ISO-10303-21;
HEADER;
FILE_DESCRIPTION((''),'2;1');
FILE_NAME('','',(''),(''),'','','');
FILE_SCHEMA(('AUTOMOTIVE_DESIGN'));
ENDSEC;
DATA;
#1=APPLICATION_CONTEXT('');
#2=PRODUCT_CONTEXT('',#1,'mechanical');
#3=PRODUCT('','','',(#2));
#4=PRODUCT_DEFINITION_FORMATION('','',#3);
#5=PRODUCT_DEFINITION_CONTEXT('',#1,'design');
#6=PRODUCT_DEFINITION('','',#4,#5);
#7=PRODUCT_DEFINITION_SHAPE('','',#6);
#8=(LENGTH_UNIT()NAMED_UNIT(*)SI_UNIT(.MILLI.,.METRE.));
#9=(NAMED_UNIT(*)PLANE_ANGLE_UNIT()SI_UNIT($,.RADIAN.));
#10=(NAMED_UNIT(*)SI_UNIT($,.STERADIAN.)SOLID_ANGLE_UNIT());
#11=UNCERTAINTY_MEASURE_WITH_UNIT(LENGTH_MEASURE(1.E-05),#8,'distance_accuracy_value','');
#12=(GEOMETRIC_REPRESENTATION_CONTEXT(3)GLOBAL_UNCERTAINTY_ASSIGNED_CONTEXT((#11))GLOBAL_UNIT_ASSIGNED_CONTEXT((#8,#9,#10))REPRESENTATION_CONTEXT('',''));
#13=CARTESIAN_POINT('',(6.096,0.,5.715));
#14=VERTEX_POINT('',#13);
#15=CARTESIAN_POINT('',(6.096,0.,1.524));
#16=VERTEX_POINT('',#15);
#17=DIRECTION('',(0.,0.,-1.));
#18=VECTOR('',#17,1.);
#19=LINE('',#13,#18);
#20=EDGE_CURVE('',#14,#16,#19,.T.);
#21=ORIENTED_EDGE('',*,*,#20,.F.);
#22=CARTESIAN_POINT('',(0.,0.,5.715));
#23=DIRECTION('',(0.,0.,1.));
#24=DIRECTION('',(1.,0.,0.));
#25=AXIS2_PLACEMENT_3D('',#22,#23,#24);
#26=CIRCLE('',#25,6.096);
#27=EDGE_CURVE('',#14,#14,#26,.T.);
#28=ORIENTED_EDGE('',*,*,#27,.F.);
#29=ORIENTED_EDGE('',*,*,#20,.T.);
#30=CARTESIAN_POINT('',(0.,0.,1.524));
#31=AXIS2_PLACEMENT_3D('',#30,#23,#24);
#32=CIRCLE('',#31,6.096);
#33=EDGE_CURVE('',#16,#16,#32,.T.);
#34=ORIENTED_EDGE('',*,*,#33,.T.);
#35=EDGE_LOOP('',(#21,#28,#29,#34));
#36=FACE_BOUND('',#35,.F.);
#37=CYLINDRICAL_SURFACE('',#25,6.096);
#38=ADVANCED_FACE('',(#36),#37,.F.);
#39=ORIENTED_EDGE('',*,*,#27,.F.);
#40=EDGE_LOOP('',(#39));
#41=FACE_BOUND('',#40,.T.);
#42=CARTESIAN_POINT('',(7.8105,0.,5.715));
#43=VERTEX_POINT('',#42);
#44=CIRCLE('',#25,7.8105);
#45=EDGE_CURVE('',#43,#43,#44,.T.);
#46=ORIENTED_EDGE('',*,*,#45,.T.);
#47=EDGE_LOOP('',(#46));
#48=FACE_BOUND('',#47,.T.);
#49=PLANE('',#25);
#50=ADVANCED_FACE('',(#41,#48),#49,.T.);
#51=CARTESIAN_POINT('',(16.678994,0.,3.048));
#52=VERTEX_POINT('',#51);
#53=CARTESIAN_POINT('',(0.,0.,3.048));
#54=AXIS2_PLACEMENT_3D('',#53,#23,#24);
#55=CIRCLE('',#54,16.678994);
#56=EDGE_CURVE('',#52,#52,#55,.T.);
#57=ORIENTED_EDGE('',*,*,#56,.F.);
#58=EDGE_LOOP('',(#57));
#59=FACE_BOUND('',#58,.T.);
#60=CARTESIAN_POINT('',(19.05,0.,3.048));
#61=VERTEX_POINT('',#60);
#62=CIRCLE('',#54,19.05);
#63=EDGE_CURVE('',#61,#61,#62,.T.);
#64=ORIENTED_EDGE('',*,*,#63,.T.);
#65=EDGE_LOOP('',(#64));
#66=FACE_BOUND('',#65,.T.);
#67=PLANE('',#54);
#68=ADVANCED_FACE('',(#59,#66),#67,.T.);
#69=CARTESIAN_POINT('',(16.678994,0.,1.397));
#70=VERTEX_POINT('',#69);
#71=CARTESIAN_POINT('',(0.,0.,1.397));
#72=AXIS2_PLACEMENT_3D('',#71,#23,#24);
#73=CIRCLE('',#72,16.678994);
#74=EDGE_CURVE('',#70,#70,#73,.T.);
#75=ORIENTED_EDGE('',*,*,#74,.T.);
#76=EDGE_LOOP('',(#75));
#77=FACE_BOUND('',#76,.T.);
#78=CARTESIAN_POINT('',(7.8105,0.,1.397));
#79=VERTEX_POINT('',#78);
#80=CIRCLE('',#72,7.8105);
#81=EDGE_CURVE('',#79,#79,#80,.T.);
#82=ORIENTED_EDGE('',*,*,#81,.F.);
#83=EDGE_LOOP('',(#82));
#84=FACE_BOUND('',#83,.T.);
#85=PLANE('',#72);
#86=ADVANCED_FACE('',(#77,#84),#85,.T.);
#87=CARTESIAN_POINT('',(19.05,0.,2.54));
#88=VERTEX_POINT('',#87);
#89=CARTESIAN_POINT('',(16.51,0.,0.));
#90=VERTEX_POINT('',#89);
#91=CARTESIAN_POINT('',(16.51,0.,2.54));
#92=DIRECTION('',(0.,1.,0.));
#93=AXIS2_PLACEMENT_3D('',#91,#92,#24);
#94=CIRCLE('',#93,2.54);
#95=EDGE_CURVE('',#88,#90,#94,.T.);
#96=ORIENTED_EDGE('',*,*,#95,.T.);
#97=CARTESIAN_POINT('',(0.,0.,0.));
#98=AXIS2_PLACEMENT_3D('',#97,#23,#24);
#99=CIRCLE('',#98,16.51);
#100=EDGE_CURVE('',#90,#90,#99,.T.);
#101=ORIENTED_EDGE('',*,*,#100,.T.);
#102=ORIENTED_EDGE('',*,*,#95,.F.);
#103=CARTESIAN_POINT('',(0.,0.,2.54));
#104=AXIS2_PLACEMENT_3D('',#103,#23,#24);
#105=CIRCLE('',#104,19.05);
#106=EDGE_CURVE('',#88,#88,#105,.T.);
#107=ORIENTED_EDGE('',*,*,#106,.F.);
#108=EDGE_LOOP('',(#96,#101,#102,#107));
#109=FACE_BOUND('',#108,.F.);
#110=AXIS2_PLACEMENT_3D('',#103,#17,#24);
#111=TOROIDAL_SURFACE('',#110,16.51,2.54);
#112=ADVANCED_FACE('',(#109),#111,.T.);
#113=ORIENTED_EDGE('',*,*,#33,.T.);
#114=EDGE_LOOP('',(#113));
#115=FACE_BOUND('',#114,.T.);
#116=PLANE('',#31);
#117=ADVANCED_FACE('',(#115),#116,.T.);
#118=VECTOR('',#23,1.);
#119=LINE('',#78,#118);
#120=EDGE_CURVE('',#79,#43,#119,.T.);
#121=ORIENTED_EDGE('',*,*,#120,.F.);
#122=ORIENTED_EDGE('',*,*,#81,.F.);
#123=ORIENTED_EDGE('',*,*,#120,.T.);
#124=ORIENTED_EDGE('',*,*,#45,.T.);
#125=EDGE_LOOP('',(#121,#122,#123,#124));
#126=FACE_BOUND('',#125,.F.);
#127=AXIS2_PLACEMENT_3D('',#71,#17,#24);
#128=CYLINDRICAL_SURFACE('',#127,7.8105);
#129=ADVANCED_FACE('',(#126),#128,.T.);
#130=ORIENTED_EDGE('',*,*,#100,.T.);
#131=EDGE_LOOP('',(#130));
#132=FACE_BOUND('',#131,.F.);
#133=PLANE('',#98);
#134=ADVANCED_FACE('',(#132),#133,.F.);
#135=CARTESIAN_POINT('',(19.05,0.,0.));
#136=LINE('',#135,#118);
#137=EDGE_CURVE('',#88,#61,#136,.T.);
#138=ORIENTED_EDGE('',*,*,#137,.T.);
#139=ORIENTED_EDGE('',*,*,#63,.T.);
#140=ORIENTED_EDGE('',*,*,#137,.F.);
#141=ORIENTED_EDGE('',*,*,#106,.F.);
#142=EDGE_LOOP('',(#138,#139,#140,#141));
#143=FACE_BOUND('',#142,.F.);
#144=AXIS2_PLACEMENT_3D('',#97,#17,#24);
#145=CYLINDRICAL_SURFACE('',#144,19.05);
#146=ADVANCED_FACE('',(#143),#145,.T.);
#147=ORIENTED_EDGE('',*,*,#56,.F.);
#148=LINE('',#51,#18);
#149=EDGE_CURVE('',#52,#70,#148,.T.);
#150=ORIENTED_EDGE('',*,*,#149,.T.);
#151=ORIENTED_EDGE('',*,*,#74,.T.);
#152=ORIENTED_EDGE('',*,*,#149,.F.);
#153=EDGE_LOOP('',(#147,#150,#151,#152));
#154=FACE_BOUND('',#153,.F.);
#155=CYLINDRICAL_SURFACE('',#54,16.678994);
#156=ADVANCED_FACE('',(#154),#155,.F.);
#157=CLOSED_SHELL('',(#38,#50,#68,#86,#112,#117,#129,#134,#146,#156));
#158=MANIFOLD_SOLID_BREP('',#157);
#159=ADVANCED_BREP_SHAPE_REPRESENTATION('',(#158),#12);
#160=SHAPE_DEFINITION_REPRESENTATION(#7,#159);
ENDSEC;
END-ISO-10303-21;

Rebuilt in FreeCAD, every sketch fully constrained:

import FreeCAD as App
import Part
import Sketcher
Q = App.Units.Quantity


def edges_at(feature, points):
    """Names of the edges that pass closest to the given points."""
    edges = feature.Shape.Edges
    near = lambda p: min(range(len(edges)), key=lambda i: edges[i].distToShape(Part.Vertex(*p))[0])
    return sorted({f"Edge{near(p) + 1}" for p in points})

doc = App.newDocument("Part")
body = doc.addObject("PartDesign::Body", "Body")

sketch1 = body.newObject("Sketcher::SketchObject", "Sketch")
sketch1.AttachmentSupport = (doc.getObject("XY_Plane"), [""])
sketch1.MapMode = "FlatFace"
sketch1.addGeometry(Part.Circle(App.Vector(0, 0, 0), App.Vector(0, 0, 1), 19), False)
sketch1.addConstraint(Sketcher.Constraint("Coincident", 0, 3, -1, 1))
sketch1.addConstraint(Sketcher.Constraint("Diameter", 0, Q("1.5 in")))
pad1 = body.newObject("PartDesign::Pad", "Pad")
pad1.Profile = sketch1
pad1.Length = Q("0.12 in")
doc.recompute()

fillet = body.newObject("PartDesign::Fillet", "Fillet")
fillet.Base = (pad1, edges_at(pad1, [(-19.05, 0, 0)]))
fillet.Radius = Q("0.1 in")

sketch2 = body.newObject("Sketcher::SketchObject", "Sketch001")
sketch2.AttachmentSupport = (doc.getObject("XY_Plane"), [""])
sketch2.MapMode = "FlatFace"
sketch2.AttachmentOffset = App.Placement(App.Vector(0, 0, 0.12 * 25.4), App.Rotation())
sketch2.addGeometry(Part.Circle(App.Vector(0, 0, 0), App.Vector(0, 0, 1), 17), False)
sketch2.addConstraint(Sketcher.Constraint("Coincident", 0, 3, -1, 1))
sketch2.addConstraint(Sketcher.Constraint("Diameter", 0, Q("33.357988 mm")))
pocket1 = body.newObject("PartDesign::Pocket", "Pocket")
pocket1.Profile = sketch2
pocket1.Length = Q("0.065 in")

sketch3 = body.newObject("Sketcher::SketchObject", "Sketch002")
sketch3.AttachmentSupport = (doc.getObject("XY_Plane"), [""])
sketch3.MapMode = "FlatFace"
sketch3.AttachmentOffset = App.Placement(App.Vector(0, 0, 0.055 * 25.4), App.Rotation())
sketch3.addGeometry(Part.Circle(App.Vector(0, 0, 0), App.Vector(0, 0, 1), 8), False)
sketch3.addConstraint(Sketcher.Constraint("Coincident", 0, 3, -1, 1))
sketch3.addConstraint(Sketcher.Constraint("Diameter", 0, Q("0.615 in")))
pad2 = body.newObject("PartDesign::Pad", "Pad001")
pad2.Profile = sketch3
pad2.Length = Q("0.17 in")

sketch4 = body.newObject("Sketcher::SketchObject", "Sketch003")
sketch4.AttachmentSupport = (doc.getObject("XY_Plane"), [""])
sketch4.MapMode = "FlatFace"
sketch4.AttachmentOffset = App.Placement(App.Vector(0, 0, 0.225 * 25.4), App.Rotation())
sketch4.addGeometry(Part.Circle(App.Vector(0, 0, 0), App.Vector(0, 0, 1), 6), False)
sketch4.addConstraint(Sketcher.Constraint("Coincident", 0, 3, -1, 1))
sketch4.addConstraint(Sketcher.Constraint("Diameter", 0, Q("0.48 in")))
pocket2 = body.newObject("PartDesign::Pocket", "Pocket001")
pocket2.Profile = sketch4
pocket2.Length = Q("0.165 in")

doc.recompute()
